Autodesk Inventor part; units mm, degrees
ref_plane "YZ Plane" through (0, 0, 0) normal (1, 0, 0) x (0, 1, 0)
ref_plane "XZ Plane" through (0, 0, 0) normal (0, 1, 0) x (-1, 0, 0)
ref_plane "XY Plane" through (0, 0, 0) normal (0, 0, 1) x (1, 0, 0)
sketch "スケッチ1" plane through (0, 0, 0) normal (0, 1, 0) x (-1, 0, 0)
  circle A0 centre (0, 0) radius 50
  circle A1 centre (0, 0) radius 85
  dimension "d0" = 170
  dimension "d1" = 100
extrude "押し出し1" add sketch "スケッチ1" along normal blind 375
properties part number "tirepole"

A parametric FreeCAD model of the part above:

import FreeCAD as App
import Part
import Sketcher

V = App.Vector
Q = App.Units.Quantity

doc = App.newDocument("Part")
body = doc.addObject("PartDesign::Body", "Body")

# Sketch on XZ plane
sketch1 = body.newObject("Sketcher::SketchObject", "Sketch")
sketch1.AttachmentSupport = (doc.getObject("XZ_Plane"), [""])
sketch1.MapMode = "FlatFace"
sketch1.addGeometry([
    Part.Circle(V(0, 0, 0), V(0, 0, 1), 85),
    Part.Circle(V(0, 0, 0), V(0, 0, 1), 50),
], False)
sketch1.addConstraint([
    Sketcher.Constraint("Coincident", 0, 3, -1, 1),
    Sketcher.Constraint("Coincident", 1, 3, -1, 1),
    Sketcher.Constraint("Diameter", 0, Q("170 mm")),
    Sketcher.Constraint("Diameter", 1, Q("100 mm")),
])
pad1 = body.newObject("PartDesign::Pad", "Pad")
pad1.Profile = sketch1
pad1.Length = 375
pad1.Reversed = True

doc.recompute()
